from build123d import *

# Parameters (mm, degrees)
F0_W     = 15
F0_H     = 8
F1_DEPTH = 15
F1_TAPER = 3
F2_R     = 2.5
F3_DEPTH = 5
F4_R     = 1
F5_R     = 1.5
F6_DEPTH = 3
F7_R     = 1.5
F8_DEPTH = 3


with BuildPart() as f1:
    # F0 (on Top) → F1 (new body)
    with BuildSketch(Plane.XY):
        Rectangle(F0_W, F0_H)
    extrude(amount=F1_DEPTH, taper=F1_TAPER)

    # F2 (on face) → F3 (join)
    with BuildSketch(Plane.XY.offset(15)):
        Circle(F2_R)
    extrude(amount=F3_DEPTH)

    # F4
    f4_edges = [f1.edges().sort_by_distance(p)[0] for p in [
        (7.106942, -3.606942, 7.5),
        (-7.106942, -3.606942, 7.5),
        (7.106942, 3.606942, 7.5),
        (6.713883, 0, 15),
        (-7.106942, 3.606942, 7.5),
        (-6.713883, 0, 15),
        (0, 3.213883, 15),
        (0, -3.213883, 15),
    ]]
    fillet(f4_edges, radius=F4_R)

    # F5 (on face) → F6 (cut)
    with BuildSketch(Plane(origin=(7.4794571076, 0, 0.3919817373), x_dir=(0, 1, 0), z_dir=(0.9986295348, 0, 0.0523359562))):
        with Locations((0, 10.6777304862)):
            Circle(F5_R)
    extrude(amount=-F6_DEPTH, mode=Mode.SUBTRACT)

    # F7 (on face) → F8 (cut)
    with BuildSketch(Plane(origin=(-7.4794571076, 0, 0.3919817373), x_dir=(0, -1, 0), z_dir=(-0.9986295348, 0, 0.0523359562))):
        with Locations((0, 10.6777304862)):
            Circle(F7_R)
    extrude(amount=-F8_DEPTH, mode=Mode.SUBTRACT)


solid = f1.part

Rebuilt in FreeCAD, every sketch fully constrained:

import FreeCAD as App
import Part
import Sketcher

V = App.Vector
Q = App.Units.Quantity


def edges_at(feature, points):
    """Names of the edges that pass closest to the given points."""
    edges = feature.Shape.Edges
    near = lambda p: min(range(len(edges)), key=lambda i: edges[i].distToShape(Part.Vertex(*p))[0])
    return sorted({f"Edge{near(p) + 1}" for p in points})

doc = App.newDocument("Part")
body = doc.addObject("PartDesign::Body", "Body")

# Sketch on XY plane
sketch1 = body.newObject("Sketcher::SketchObject", "Sketch")
sketch1.AttachmentSupport = (doc.getObject("XY_Plane"), [""])
sketch1.MapMode = "FlatFace"
sketch1.addGeometry([
    Part.LineSegment(V(-8, 4, 0), V(-8, -4, 0)),
    Part.LineSegment(V(-8, -4, 0), V(8, -4, 0)),
    Part.LineSegment(V(8, -4, 0), V(8, 4, 0)),
    Part.LineSegment(V(8, 4, 0), V(-8, 4, 0)),
], False)
sketch1.addConstraint([
    Sketcher.Constraint("Coincident", 0, 2, 1, 1),
    Sketcher.Constraint("Coincident", 1, 2, 2, 1),
    Sketcher.Constraint("Coincident", 2, 2, 3, 1),
    Sketcher.Constraint("Coincident", 3, 2, 0, 1),
    Sketcher.Constraint("Vertical", 0),
    Sketcher.Constraint("Horizontal", 1),
    Sketcher.Constraint("Vertical", 2),
    Sketcher.Constraint("Horizontal", 3),
    Sketcher.Constraint("Symmetric", 0, 2, 2, 2, -1, 1),
    Sketcher.Constraint("DistanceX", 1, 1, 1, 2, Q("15 mm")),
    Sketcher.Constraint("DistanceY", 0, 2, 0, 1, Q("8 mm")),
])
pad1 = body.newObject("PartDesign::Pad", "Pad")
pad1.Profile = sketch1
pad1.Length = 15
pad1.TaperAngle = -3

# Sketch on XY plane
sketch2 = body.newObject("Sketcher::SketchObject", "Sketch001")
sketch2.AttachmentSupport = (doc.getObject("XY_Plane"), [""])
sketch2.MapMode = "FlatFace"
sketch2.AttachmentOffset = App.Placement(V(0, 0, 15), App.Rotation())
sketch2.addGeometry(Part.Circle(V(0, 0, 0), V(0, 0, 1), 2.5), False)
sketch2.addConstraint([
    Sketcher.Constraint("Coincident", 0, 3, -1, 1),
    Sketcher.Constraint("Diameter", 0, Q("5 mm")),
])
pad2 = body.newObject("PartDesign::Pad", "Pad001")
pad2.Profile = sketch2
pad2.Length = 5
doc.recompute()

fillet = body.newObject("PartDesign::Fillet", "Fillet")
fillet.Base = (pad2, edges_at(pad2, [
    (7.107, -3.607, 7.5),
    (-7.107, -3.607, 7.5),
    (7.107, 3.607, 7.5),
    (6.714, 0, 15),
    (-7.107, 3.607, 7.5),
    (-6.714, 0, 15),
    (0, 3.214, 15),
    (0, -3.214, 15),
]))
fillet.Radius = 1

# Sketch on an angled plane
sketch3 = body.newObject("Sketcher::SketchObject", "Sketch002")
sketch3.Placement = App.Placement(V(7.479457, 0, 0.391982), App.Rotation(V(0, 1, 0), V(-0.052335956, 0, 0.998629535), V(0.998629535, 0, 0.052335956), "ZXY"))
sketch3.addGeometry(Part.Circle(V(0, 10.7, 0), V(0, 0, 1), 1.5), False)
sketch3.addConstraint([
    Sketcher.Constraint("PointOnObject", 0, 3, -2),
    Sketcher.Constraint("Diameter", 0, Q("3 mm")),
    Sketcher.Constraint("DistanceY", -1, 1, 0, 3, Q("10.67773 mm")),
])
pocket1 = body.newObject("PartDesign::Pocket", "Pocket")
pocket1.Profile = sketch3
pocket1.Length = 3

# Sketch on an angled plane
sketch4 = body.newObject("Sketcher::SketchObject", "Sketch003")
sketch4.Placement = App.Placement(V(-7.479457, 0, 0.391982), App.Rotation(V(0, -1, 0), V(0.052335956, 0, 0.998629535), V(-0.998629535, 0, 0.052335956), "ZXY"))
sketch4.addGeometry(Part.Circle(V(0, 10.7, 0), V(0, 0, 1), 1.5), False)
sketch4.addConstraint([
    Sketcher.Constraint("PointOnObject", 0, 3, -2),
    Sketcher.Constraint("Diameter", 0, Q("3 mm")),
    Sketcher.Constraint("DistanceY", -1, 1, 0, 3, Q("10.67773 mm")),
])
pocket2 = body.newObject("PartDesign::Pocket", "Pocket001")
pocket2.Profile = sketch4
pocket2.Length = 3

doc.recompute()
